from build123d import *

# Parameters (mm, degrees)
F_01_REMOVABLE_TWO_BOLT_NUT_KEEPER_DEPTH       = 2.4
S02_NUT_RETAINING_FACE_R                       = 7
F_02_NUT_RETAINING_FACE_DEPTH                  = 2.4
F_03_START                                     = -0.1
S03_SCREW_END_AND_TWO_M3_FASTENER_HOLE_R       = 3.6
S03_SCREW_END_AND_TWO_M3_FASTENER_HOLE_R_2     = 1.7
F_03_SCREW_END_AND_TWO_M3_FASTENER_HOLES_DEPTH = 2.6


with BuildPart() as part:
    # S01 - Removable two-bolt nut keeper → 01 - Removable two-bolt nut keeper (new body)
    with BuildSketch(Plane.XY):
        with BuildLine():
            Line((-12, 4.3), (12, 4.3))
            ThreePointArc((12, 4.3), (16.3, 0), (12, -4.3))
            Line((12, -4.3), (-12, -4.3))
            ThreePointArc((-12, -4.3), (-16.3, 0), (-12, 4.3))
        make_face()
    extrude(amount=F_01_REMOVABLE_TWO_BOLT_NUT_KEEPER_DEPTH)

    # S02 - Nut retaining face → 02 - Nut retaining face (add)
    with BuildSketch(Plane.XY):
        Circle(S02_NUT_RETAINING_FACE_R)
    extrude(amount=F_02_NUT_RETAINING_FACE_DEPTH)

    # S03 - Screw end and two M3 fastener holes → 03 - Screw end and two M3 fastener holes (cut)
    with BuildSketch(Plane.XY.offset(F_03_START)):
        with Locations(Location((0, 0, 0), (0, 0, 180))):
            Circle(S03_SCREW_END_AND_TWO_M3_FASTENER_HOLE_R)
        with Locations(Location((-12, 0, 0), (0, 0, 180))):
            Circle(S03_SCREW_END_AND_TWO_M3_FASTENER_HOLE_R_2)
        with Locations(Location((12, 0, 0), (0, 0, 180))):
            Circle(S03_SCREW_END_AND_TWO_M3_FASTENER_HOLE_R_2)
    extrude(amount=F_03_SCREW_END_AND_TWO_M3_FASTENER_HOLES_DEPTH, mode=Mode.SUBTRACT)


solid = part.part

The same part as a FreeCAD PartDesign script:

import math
import FreeCAD as App
import Part
import Sketcher
from FreeCAD import Vector
Q = App.Units.Quantity

doc = App.newDocument("Part")
body = doc.addObject("PartDesign::Body", "Body")

sketch1 = doc.addObject("Sketcher::SketchObject", "Sketch")
body.addObject(sketch1)
sketch1.AttachmentSupport = (doc.XY_Plane, [""])
sketch1.MapMode = "FlatFace"
sketch1.addGeometry(Part.LineSegment(Vector(12, 4.3, 0), Vector(-12, 4.3, 0)), False)
sketch1.addGeometry(Part.ArcOfCircle(Part.Circle(Vector(-12, 0, 0), Vector(0, 0, 1), 4.3), math.radians(90), math.radians(270)), False)
sketch1.addGeometry(Part.LineSegment(Vector(-12, -4.3, 0), Vector(12, -4.3, 0)), False)
sketch1.addGeometry(Part.ArcOfCircle(Part.Circle(Vector(12, 0, 0), Vector(0, 0, 1), 4.3), math.radians(-90), math.radians(90)), False)
sketch1.addConstraint(Sketcher.Constraint("Tangent", 0, 2, 1, 1))
sketch1.addConstraint(Sketcher.Constraint("Tangent", 1, 2, 2, 1))
sketch1.addConstraint(Sketcher.Constraint("Tangent", 2, 2, 3, 1))
sketch1.addConstraint(Sketcher.Constraint("Tangent", 3, 2, 0, 1))
sketch1.addConstraint(Sketcher.Constraint("Horizontal", 0))
sketch1.addConstraint(Sketcher.Constraint("Horizontal", 2))
sketch1.addConstraint(Sketcher.Constraint("Symmetric", 1, 3, 3, 3, -1, 1))
sketch1.addConstraint(Sketcher.Constraint("Radius", 1, Q("4.3 mm")))
sketch1.addConstraint(Sketcher.Constraint("DistanceX", 0, 2, 0, 1, Q("24 mm")))
pad1 = doc.addObject("PartDesign::Pad", "Pad")
body.addObject(pad1)
pad1.Profile = sketch1
pad1.Length = 2.4

sketch2 = doc.addObject("Sketcher::SketchObject", "Sketch001")
body.addObject(sketch2)
sketch2.AttachmentSupport = (doc.XY_Plane, [""])
sketch2.MapMode = "FlatFace"
sketch2.addGeometry(Part.Circle(Vector(0, 0, 0), Vector(0, 0, 1), 7), False)
sketch2.addConstraint(Sketcher.Constraint("Coincident", 0, 3, -1, 1))
sketch2.addConstraint(Sketcher.Constraint("Diameter", 0, Q("14 mm")))
pad2 = doc.addObject("PartDesign::Pad", "Pad001")
body.addObject(pad2)
pad2.Profile = sketch2
pad2.Length = 2.4

sketch3 = doc.addObject("Sketcher::SketchObject", "Sketch002")
body.addObject(sketch3)
sketch3.AttachmentSupport = (doc.XY_Plane, [""])
sketch3.MapMode = "FlatFace"
sketch3.AttachmentOffset = App.Placement(Vector(0, 0, -0.1), App.Rotation())
sketch3.addGeometry(Part.Circle(Vector(0, 0, 0), Vector(0, 0, 1), 3.6), False)
sketch3.addGeometry(Part.Circle(Vector(-12, 0, 0), Vector(0, 0, 1), 1.7), False)
sketch3.addGeometry(Part.Circle(Vector(12, 0, 0), Vector(0, 0, 1), 1.7), False)
sketch3.addConstraint(Sketcher.Constraint("Coincident", 0, 3, -1, 1))
sketch3.addConstraint(Sketcher.Constraint("Equal", 1, 2))
sketch3.addConstraint(Sketcher.Constraint("Symmetric", 1, 3, 2, 3, -1, 1))
sketch3.addConstraint(Sketcher.Constraint("PointOnObject", 1, 3, -1))
sketch3.addConstraint(Sketcher.Constraint("Diameter", 0, Q("7.2 mm")))
sketch3.addConstraint(Sketcher.Constraint("Diameter", 1, Q("3.4 mm")))
sketch3.addConstraint(Sketcher.Constraint("DistanceX", 1, 3, -1, 1, Q("12 mm")))
pocket1 = doc.addObject("PartDesign::Pocket", "Pocket")
body.addObject(pocket1)
pocket1.Profile = sketch3
pocket1.Length = 2.6
pocket1.Reversed = True

doc.recompute()
